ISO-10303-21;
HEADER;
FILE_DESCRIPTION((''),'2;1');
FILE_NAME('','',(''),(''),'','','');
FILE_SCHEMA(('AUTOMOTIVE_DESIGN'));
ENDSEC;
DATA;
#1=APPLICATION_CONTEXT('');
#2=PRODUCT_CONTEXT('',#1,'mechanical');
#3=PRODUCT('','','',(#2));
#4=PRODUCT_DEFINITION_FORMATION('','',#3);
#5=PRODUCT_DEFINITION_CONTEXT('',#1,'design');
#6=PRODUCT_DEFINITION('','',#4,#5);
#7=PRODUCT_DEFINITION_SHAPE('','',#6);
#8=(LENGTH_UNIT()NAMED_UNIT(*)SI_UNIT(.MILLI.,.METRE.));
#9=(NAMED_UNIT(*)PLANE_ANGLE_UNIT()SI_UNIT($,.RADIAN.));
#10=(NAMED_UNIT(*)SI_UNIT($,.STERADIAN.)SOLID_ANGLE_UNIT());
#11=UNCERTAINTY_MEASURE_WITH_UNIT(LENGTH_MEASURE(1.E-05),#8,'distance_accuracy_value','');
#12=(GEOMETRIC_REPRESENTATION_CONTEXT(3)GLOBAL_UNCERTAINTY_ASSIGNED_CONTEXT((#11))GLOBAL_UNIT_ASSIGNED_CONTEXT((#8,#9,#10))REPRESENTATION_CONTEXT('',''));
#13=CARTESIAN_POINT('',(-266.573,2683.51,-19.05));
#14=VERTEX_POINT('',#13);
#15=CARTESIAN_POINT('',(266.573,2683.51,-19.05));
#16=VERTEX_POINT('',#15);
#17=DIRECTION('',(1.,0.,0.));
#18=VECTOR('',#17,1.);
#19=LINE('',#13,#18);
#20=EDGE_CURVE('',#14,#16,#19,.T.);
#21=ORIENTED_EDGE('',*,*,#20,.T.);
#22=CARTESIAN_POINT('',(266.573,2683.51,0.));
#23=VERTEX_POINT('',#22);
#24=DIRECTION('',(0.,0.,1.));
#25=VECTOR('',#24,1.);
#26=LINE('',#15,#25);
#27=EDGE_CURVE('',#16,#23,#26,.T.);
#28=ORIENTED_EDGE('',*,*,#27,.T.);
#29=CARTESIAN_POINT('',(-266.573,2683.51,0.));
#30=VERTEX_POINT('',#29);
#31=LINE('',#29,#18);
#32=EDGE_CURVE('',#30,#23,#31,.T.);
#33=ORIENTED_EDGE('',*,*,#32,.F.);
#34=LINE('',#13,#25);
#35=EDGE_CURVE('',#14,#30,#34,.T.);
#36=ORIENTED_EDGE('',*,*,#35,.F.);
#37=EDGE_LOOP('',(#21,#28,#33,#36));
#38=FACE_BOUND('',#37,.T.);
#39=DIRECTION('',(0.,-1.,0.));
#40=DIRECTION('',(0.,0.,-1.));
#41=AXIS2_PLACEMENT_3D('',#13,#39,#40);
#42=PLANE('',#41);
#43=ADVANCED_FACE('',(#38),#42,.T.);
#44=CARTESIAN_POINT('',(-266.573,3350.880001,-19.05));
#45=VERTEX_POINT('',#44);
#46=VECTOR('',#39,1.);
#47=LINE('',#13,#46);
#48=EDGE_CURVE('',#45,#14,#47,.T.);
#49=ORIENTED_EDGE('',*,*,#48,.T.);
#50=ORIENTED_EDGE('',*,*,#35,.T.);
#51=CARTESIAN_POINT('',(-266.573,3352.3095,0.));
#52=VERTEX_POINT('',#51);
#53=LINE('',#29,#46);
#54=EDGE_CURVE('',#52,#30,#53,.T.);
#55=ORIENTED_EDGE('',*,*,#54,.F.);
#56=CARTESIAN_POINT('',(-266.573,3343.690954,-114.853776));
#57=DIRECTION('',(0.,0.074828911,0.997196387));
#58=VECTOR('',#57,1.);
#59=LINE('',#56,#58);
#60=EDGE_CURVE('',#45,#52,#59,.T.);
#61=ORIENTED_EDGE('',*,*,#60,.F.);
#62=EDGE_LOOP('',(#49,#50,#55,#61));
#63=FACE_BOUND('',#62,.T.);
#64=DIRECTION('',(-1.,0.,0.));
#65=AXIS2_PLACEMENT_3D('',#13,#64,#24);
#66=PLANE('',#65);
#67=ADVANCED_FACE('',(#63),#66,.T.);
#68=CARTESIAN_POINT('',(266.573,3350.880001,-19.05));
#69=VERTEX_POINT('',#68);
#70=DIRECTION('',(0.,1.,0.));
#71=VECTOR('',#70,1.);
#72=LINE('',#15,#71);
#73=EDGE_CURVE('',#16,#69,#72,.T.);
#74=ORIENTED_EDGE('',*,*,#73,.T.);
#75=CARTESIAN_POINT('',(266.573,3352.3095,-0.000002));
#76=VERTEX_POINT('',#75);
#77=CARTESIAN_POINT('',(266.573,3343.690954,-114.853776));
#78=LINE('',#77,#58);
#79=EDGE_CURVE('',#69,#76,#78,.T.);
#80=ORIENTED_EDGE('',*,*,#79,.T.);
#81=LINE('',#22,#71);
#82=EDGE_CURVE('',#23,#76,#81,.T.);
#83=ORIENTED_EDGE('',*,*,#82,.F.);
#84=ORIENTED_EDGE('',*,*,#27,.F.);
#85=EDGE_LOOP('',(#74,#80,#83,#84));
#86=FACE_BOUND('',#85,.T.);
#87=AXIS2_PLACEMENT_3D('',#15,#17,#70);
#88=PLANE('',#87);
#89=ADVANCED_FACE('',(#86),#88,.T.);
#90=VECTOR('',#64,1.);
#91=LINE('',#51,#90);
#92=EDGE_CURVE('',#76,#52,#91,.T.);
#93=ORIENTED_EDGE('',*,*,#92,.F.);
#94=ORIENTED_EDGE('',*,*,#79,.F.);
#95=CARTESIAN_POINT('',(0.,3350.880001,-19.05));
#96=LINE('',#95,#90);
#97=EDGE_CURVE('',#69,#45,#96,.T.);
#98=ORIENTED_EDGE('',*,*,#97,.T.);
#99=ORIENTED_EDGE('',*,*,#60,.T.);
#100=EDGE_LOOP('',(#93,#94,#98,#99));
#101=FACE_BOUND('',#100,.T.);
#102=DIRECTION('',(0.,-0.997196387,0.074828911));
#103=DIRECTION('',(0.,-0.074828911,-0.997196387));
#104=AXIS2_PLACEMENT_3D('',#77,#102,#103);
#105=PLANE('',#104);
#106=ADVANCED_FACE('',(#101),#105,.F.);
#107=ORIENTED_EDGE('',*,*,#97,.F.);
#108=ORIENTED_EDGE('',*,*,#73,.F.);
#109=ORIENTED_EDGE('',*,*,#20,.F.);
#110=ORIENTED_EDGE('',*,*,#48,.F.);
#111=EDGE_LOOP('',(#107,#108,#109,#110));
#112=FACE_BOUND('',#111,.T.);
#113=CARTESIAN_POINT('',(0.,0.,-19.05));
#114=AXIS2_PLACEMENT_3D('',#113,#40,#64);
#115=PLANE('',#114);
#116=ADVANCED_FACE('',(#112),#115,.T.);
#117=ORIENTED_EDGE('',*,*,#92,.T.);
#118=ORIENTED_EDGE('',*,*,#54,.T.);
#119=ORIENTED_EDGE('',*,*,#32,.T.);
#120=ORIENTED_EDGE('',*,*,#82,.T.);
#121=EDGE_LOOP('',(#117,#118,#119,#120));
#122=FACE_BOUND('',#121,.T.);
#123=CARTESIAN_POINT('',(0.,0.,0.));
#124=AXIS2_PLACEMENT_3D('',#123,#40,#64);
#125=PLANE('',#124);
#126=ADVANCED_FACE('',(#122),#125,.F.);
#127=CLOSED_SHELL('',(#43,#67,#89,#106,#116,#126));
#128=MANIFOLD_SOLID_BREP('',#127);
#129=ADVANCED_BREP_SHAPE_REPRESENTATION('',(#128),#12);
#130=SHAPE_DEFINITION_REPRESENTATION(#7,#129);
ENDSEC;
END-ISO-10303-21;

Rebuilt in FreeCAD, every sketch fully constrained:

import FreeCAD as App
import Part
import Sketcher
from FreeCAD import Vector
Q = App.Units.Quantity


def add_polygon(sketch, points):
    """Adds a closed chain of lines whose ends are joined by coincident constraints."""
    first, n = sketch.GeometryCount, len(points)
    for a, b in zip(points, points[1:] + points[:1]):
        sketch.addGeometry(Part.LineSegment(App.Vector(*a, 0), App.Vector(*b, 0)), False)
    for i in range(n):
        sketch.addConstraint(Sketcher.Constraint("Coincident", first + i, 2, first + (i + 1) % n, 1))

doc = App.newDocument("Part")
body = doc.addObject("PartDesign::Body", "Body")

# Sketch on XY plane
sketch1 = body.newObject("Sketcher::SketchObject", "Sketch")
sketch1.AttachmentSupport = (doc.getObject("XY_Plane"), [""])
sketch1.MapMode = "FlatFace"
add_polygon(sketch1, [(-266.573, 3352.3095), (-266.573, 2683.51), (266.573, 2683.51), (266.573, 3352.3095)])  # lines 0-3
sketch1.addConstraint(Sketcher.Constraint("Vertical", 0))
sketch1.addConstraint(Sketcher.Constraint("Horizontal", 1))
sketch1.addConstraint(Sketcher.Constraint("Vertical", 2))
sketch1.addConstraint(Sketcher.Constraint("Horizontal", 3))
sketch1.addConstraint(Sketcher.Constraint("DistanceX", 1, 1, 1, 2, Q("20.99 in")))
sketch1.addConstraint(Sketcher.Constraint("DistanceY", -1, 1, 0, 2, Q("105.65 in")))
sketch1.addConstraint(Sketcher.Constraint("DistanceX", 0, 2, -1, 1, Q("10.495 in")))
sketch1.addConstraint(Sketcher.Constraint("DistanceY", 0, 2, 0, 1, Q("668.7995 mm")))
pad1 = body.newObject("PartDesign::Pad", "Pad")
pad1.Profile = sketch1
pad1.Length = Q("0.75 in")
pad1.Reversed = True

# Sketch on YZ plane
sketch2 = body.newObject("Sketcher::SketchObject", "Sketch001")
sketch2.AttachmentSupport = (doc.getObject("YZ_Plane"), [""])
sketch2.MapMode = "FlatFace"
sketch2.AttachmentOffset = App.Placement(Vector(0, 0, -10.495 * 25.4), App.Rotation())
add_polygon(sketch2, [(3352.3095, -0.000002), (3371.306091, -1.425493), (3363.3918, -106.894117), (3343.690954, -114.853776)])  # lines 0-3
sketch2.addConstraint(Sketcher.Constraint("Perpendicular", 0, 1))
sketch2.addConstraint(Sketcher.Constraint("Parallel", 1, 3))
sketch2.addConstraint(Sketcher.Constraint("Angle", 2, Q("-158 deg")))
sketch2.addConstraint(Sketcher.Constraint("Distance", 0, Q("0.75 in")))
sketch2.addConstraint(Sketcher.Constraint("DistanceX", -1, 1, 1, 2, Q("132.417 in")))
sketch2.addConstraint(Sketcher.Constraint("DistanceX", -1, 1, 3, 2, Q("3352.3095 mm")))
sketch2.addConstraint(Sketcher.Constraint("Distance", 1, Q("105.765149 mm")))
sketch2.addConstraint(Sketcher.Constraint("DistanceY", 0, 2, -1, 1, Q("1.425493 mm")))
pocket1 = body.newObject("PartDesign::Pocket", "Pocket")
pocket1.Profile = sketch2
pocket1.Type = "ThroughAll"
pocket1.Reversed = True

doc.recompute()
